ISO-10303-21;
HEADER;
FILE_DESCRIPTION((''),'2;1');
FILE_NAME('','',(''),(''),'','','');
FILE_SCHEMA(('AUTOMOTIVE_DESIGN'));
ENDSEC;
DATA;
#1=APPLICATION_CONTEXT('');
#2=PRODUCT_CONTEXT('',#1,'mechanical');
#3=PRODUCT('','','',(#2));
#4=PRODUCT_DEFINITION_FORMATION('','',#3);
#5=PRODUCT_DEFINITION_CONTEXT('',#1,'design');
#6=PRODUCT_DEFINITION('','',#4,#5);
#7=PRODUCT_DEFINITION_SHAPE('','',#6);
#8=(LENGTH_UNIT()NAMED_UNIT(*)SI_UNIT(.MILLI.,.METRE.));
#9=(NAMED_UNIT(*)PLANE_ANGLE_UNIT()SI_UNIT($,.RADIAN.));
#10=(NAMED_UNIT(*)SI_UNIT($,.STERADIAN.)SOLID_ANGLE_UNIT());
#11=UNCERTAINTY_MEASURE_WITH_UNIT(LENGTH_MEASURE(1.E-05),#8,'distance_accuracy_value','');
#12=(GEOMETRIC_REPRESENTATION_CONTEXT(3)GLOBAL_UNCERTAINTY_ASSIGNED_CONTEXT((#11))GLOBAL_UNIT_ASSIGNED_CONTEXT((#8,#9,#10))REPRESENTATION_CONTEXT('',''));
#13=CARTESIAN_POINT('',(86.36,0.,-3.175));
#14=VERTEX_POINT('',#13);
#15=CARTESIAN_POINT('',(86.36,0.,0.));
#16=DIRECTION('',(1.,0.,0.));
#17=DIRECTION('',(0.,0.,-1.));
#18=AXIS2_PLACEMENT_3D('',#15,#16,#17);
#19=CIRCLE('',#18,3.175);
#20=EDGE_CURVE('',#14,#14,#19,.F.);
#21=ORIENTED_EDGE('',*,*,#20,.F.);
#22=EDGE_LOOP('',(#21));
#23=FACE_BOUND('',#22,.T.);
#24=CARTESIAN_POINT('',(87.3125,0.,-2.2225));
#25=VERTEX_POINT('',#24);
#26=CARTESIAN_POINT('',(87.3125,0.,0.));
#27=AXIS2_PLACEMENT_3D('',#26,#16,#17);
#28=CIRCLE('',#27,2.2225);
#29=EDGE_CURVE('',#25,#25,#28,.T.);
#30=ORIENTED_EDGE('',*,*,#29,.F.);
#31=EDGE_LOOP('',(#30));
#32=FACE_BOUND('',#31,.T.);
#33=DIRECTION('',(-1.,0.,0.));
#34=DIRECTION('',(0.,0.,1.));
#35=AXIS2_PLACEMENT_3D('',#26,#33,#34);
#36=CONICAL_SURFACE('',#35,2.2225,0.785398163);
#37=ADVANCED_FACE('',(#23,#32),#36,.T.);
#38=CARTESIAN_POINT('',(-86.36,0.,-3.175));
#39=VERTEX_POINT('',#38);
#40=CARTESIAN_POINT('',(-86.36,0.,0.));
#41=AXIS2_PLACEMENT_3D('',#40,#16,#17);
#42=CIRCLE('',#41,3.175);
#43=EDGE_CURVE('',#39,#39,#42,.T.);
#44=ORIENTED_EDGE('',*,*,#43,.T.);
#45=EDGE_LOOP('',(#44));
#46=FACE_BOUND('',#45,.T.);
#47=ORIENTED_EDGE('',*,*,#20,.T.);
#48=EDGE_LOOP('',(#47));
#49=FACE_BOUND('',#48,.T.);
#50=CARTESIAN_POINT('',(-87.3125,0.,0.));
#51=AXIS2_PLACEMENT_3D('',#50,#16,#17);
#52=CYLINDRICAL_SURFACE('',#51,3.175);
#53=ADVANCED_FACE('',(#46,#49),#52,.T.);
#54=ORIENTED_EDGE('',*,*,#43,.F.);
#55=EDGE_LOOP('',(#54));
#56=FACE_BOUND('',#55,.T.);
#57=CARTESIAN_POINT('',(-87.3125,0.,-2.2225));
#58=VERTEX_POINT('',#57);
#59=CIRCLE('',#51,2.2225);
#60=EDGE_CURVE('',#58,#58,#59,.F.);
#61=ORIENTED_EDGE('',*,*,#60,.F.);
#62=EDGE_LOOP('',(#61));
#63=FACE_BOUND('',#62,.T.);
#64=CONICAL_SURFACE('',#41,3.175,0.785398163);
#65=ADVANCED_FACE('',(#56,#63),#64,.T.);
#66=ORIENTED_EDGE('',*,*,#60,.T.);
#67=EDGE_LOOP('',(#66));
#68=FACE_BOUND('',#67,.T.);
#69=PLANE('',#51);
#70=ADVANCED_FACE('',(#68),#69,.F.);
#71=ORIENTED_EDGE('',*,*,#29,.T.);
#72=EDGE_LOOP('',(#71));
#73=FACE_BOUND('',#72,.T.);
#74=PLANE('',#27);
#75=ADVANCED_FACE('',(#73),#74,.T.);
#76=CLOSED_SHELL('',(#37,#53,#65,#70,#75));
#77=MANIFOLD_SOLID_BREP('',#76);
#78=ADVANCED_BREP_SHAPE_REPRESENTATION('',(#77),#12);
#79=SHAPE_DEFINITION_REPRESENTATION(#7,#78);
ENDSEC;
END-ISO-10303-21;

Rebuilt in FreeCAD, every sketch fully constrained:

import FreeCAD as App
import Part
import Sketcher
from FreeCAD import Vector
Q = App.Units.Quantity


def edges_at(feature, points):
    """Names of the edges that pass closest to the given points."""
    edges = feature.Shape.Edges
    near = lambda p: min(range(len(edges)), key=lambda i: edges[i].distToShape(Part.Vertex(*p))[0])
    return sorted({f"Edge{near(p) + 1}" for p in points})

doc = App.newDocument("Part")
body = doc.addObject("PartDesign::Body", "Body")

sketch1 = body.newObject("Sketcher::SketchObject", "Sketch")
sketch1.AttachmentSupport = (doc.getObject("YZ_Plane"), [""])
sketch1.MapMode = "FlatFace"
sketch1.addGeometry(Part.Circle(Vector(0, 0, 0), Vector(0, 0, 1), 3.2), False)
sketch1.addConstraint(Sketcher.Constraint("Coincident", 0, 3, -1, 1))
sketch1.addConstraint(Sketcher.Constraint("Diameter", 0, Q("0.25 in")))
pad1 = body.newObject("PartDesign::Pad", "Pad")
pad1.Profile = sketch1
pad1.Type = "TwoLengths"
pad1.Length = Q("3.4375 in")
pad1.Length2 = Q("3.4375 in")
doc.recompute()

chamfer = body.newObject("PartDesign::Chamfer", "Chamfer")
chamfer.Base = (pad1, edges_at(pad1, [(-87.312, 0, 3.175), (87.312, 0, 3.175)]))
chamfer.Size = Q("0.0375 in")

doc.recompute()
